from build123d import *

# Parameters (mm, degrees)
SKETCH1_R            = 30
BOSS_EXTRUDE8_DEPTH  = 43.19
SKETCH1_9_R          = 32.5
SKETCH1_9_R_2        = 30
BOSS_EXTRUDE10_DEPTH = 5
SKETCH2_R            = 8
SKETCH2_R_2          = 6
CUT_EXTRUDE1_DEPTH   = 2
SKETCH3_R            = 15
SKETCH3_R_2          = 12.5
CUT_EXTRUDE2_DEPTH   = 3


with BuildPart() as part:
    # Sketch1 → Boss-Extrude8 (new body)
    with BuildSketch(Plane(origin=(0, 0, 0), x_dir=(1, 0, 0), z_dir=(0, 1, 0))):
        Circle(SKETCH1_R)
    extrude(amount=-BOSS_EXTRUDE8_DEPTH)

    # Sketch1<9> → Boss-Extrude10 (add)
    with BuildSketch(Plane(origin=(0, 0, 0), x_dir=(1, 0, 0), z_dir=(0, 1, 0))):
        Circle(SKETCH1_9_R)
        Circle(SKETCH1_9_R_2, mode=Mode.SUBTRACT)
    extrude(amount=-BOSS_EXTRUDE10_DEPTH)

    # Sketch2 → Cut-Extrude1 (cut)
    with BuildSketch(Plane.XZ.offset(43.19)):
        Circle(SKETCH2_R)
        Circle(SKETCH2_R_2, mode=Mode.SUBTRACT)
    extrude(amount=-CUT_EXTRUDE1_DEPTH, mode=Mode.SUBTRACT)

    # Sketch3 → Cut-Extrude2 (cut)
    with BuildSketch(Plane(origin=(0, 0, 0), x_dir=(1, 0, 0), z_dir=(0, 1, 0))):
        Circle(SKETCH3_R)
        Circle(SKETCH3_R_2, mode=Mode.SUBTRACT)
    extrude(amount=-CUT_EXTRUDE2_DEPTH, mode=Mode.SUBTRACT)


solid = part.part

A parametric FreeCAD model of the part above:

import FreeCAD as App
import Part
import Sketcher
from FreeCAD import Vector

doc = App.newDocument("Part")
body = doc.addObject("PartDesign::Body", "Body")

sketch1 = body.newObject("Sketcher::SketchObject", "Sketch")
sketch1.AttachmentSupport = (doc.getObject("XZ_Plane"), [""])
sketch1.MapMode = "FlatFace"
sketch1.addGeometry(Part.Circle(Vector(0, 0, 0), Vector(0, 0, 1), 30), False)
sketch1.addConstraint([
    Sketcher.Constraint("Coincident", 0, 3, -1, 1),
    Sketcher.Constraint("Diameter", 0, 60.0),
])
pad1 = body.newObject("PartDesign::Pad", "Pad")
pad1.Profile = sketch1
pad1.Length = 43.19

sketch2 = body.newObject("Sketcher::SketchObject", "Sketch001")
sketch2.AttachmentSupport = (doc.getObject("XZ_Plane"), [""])
sketch2.MapMode = "FlatFace"
sketch2.addGeometry([
    Part.Circle(Vector(0, 0, 0), Vector(0, 0, 1), 32.5),
    Part.Circle(Vector(0, 0, 0), Vector(0, 0, 1), 30),
], False)
sketch2.addConstraint([
    Sketcher.Constraint("Coincident", 0, 3, -1, 1),
    Sketcher.Constraint("Coincident", 1, 3, -1, 1),
    Sketcher.Constraint("Diameter", 0, 65.0),
    Sketcher.Constraint("Diameter", 1, 60.0),
])
pad2 = body.newObject("PartDesign::Pad", "Pad001")
pad2.Profile = sketch2
pad2.Length = 5

sketch3 = body.newObject("Sketcher::SketchObject", "Sketch002")
sketch3.AttachmentSupport = (doc.getObject("XZ_Plane"), [""])
sketch3.MapMode = "FlatFace"
sketch3.AttachmentOffset = App.Placement(Vector(0, 0, 43.19), App.Rotation())
sketch3.addGeometry([
    Part.Circle(Vector(0, 0, 0), Vector(0, 0, 1), 8),
    Part.Circle(Vector(0, 0, 0), Vector(0, 0, 1), 6),
], False)
sketch3.addConstraint([
    Sketcher.Constraint("Coincident", 0, 3, -1, 1),
    Sketcher.Constraint("Coincident", 1, 3, -1, 1),
    Sketcher.Constraint("Diameter", 0, 16.0),
    Sketcher.Constraint("Diameter", 1, 12.0),
])
pocket1 = body.newObject("PartDesign::Pocket", "Pocket")
pocket1.Profile = sketch3
pocket1.Length = 2

sketch4 = body.newObject("Sketcher::SketchObject", "Sketch003")
sketch4.AttachmentSupport = (doc.getObject("XZ_Plane"), [""])
sketch4.MapMode = "FlatFace"
sketch4.addGeometry([
    Part.Circle(Vector(0, 0, 0), Vector(0, 0, 1), 15),
    Part.Circle(Vector(0, 0, 0), Vector(0, 0, 1), 12.5),
], False)
sketch4.addConstraint([
    Sketcher.Constraint("Coincident", 0, 3, -1, 1),
    Sketcher.Constraint("Coincident", 1, 3, -1, 1),
    Sketcher.Constraint("Diameter", 0, 30.0),
    Sketcher.Constraint("Diameter", 1, 25.0),
])
pocket2 = body.newObject("PartDesign::Pocket", "Pocket001")
pocket2.Profile = sketch4
pocket2.Length = 3
pocket2.Reversed = True

doc.recompute()
